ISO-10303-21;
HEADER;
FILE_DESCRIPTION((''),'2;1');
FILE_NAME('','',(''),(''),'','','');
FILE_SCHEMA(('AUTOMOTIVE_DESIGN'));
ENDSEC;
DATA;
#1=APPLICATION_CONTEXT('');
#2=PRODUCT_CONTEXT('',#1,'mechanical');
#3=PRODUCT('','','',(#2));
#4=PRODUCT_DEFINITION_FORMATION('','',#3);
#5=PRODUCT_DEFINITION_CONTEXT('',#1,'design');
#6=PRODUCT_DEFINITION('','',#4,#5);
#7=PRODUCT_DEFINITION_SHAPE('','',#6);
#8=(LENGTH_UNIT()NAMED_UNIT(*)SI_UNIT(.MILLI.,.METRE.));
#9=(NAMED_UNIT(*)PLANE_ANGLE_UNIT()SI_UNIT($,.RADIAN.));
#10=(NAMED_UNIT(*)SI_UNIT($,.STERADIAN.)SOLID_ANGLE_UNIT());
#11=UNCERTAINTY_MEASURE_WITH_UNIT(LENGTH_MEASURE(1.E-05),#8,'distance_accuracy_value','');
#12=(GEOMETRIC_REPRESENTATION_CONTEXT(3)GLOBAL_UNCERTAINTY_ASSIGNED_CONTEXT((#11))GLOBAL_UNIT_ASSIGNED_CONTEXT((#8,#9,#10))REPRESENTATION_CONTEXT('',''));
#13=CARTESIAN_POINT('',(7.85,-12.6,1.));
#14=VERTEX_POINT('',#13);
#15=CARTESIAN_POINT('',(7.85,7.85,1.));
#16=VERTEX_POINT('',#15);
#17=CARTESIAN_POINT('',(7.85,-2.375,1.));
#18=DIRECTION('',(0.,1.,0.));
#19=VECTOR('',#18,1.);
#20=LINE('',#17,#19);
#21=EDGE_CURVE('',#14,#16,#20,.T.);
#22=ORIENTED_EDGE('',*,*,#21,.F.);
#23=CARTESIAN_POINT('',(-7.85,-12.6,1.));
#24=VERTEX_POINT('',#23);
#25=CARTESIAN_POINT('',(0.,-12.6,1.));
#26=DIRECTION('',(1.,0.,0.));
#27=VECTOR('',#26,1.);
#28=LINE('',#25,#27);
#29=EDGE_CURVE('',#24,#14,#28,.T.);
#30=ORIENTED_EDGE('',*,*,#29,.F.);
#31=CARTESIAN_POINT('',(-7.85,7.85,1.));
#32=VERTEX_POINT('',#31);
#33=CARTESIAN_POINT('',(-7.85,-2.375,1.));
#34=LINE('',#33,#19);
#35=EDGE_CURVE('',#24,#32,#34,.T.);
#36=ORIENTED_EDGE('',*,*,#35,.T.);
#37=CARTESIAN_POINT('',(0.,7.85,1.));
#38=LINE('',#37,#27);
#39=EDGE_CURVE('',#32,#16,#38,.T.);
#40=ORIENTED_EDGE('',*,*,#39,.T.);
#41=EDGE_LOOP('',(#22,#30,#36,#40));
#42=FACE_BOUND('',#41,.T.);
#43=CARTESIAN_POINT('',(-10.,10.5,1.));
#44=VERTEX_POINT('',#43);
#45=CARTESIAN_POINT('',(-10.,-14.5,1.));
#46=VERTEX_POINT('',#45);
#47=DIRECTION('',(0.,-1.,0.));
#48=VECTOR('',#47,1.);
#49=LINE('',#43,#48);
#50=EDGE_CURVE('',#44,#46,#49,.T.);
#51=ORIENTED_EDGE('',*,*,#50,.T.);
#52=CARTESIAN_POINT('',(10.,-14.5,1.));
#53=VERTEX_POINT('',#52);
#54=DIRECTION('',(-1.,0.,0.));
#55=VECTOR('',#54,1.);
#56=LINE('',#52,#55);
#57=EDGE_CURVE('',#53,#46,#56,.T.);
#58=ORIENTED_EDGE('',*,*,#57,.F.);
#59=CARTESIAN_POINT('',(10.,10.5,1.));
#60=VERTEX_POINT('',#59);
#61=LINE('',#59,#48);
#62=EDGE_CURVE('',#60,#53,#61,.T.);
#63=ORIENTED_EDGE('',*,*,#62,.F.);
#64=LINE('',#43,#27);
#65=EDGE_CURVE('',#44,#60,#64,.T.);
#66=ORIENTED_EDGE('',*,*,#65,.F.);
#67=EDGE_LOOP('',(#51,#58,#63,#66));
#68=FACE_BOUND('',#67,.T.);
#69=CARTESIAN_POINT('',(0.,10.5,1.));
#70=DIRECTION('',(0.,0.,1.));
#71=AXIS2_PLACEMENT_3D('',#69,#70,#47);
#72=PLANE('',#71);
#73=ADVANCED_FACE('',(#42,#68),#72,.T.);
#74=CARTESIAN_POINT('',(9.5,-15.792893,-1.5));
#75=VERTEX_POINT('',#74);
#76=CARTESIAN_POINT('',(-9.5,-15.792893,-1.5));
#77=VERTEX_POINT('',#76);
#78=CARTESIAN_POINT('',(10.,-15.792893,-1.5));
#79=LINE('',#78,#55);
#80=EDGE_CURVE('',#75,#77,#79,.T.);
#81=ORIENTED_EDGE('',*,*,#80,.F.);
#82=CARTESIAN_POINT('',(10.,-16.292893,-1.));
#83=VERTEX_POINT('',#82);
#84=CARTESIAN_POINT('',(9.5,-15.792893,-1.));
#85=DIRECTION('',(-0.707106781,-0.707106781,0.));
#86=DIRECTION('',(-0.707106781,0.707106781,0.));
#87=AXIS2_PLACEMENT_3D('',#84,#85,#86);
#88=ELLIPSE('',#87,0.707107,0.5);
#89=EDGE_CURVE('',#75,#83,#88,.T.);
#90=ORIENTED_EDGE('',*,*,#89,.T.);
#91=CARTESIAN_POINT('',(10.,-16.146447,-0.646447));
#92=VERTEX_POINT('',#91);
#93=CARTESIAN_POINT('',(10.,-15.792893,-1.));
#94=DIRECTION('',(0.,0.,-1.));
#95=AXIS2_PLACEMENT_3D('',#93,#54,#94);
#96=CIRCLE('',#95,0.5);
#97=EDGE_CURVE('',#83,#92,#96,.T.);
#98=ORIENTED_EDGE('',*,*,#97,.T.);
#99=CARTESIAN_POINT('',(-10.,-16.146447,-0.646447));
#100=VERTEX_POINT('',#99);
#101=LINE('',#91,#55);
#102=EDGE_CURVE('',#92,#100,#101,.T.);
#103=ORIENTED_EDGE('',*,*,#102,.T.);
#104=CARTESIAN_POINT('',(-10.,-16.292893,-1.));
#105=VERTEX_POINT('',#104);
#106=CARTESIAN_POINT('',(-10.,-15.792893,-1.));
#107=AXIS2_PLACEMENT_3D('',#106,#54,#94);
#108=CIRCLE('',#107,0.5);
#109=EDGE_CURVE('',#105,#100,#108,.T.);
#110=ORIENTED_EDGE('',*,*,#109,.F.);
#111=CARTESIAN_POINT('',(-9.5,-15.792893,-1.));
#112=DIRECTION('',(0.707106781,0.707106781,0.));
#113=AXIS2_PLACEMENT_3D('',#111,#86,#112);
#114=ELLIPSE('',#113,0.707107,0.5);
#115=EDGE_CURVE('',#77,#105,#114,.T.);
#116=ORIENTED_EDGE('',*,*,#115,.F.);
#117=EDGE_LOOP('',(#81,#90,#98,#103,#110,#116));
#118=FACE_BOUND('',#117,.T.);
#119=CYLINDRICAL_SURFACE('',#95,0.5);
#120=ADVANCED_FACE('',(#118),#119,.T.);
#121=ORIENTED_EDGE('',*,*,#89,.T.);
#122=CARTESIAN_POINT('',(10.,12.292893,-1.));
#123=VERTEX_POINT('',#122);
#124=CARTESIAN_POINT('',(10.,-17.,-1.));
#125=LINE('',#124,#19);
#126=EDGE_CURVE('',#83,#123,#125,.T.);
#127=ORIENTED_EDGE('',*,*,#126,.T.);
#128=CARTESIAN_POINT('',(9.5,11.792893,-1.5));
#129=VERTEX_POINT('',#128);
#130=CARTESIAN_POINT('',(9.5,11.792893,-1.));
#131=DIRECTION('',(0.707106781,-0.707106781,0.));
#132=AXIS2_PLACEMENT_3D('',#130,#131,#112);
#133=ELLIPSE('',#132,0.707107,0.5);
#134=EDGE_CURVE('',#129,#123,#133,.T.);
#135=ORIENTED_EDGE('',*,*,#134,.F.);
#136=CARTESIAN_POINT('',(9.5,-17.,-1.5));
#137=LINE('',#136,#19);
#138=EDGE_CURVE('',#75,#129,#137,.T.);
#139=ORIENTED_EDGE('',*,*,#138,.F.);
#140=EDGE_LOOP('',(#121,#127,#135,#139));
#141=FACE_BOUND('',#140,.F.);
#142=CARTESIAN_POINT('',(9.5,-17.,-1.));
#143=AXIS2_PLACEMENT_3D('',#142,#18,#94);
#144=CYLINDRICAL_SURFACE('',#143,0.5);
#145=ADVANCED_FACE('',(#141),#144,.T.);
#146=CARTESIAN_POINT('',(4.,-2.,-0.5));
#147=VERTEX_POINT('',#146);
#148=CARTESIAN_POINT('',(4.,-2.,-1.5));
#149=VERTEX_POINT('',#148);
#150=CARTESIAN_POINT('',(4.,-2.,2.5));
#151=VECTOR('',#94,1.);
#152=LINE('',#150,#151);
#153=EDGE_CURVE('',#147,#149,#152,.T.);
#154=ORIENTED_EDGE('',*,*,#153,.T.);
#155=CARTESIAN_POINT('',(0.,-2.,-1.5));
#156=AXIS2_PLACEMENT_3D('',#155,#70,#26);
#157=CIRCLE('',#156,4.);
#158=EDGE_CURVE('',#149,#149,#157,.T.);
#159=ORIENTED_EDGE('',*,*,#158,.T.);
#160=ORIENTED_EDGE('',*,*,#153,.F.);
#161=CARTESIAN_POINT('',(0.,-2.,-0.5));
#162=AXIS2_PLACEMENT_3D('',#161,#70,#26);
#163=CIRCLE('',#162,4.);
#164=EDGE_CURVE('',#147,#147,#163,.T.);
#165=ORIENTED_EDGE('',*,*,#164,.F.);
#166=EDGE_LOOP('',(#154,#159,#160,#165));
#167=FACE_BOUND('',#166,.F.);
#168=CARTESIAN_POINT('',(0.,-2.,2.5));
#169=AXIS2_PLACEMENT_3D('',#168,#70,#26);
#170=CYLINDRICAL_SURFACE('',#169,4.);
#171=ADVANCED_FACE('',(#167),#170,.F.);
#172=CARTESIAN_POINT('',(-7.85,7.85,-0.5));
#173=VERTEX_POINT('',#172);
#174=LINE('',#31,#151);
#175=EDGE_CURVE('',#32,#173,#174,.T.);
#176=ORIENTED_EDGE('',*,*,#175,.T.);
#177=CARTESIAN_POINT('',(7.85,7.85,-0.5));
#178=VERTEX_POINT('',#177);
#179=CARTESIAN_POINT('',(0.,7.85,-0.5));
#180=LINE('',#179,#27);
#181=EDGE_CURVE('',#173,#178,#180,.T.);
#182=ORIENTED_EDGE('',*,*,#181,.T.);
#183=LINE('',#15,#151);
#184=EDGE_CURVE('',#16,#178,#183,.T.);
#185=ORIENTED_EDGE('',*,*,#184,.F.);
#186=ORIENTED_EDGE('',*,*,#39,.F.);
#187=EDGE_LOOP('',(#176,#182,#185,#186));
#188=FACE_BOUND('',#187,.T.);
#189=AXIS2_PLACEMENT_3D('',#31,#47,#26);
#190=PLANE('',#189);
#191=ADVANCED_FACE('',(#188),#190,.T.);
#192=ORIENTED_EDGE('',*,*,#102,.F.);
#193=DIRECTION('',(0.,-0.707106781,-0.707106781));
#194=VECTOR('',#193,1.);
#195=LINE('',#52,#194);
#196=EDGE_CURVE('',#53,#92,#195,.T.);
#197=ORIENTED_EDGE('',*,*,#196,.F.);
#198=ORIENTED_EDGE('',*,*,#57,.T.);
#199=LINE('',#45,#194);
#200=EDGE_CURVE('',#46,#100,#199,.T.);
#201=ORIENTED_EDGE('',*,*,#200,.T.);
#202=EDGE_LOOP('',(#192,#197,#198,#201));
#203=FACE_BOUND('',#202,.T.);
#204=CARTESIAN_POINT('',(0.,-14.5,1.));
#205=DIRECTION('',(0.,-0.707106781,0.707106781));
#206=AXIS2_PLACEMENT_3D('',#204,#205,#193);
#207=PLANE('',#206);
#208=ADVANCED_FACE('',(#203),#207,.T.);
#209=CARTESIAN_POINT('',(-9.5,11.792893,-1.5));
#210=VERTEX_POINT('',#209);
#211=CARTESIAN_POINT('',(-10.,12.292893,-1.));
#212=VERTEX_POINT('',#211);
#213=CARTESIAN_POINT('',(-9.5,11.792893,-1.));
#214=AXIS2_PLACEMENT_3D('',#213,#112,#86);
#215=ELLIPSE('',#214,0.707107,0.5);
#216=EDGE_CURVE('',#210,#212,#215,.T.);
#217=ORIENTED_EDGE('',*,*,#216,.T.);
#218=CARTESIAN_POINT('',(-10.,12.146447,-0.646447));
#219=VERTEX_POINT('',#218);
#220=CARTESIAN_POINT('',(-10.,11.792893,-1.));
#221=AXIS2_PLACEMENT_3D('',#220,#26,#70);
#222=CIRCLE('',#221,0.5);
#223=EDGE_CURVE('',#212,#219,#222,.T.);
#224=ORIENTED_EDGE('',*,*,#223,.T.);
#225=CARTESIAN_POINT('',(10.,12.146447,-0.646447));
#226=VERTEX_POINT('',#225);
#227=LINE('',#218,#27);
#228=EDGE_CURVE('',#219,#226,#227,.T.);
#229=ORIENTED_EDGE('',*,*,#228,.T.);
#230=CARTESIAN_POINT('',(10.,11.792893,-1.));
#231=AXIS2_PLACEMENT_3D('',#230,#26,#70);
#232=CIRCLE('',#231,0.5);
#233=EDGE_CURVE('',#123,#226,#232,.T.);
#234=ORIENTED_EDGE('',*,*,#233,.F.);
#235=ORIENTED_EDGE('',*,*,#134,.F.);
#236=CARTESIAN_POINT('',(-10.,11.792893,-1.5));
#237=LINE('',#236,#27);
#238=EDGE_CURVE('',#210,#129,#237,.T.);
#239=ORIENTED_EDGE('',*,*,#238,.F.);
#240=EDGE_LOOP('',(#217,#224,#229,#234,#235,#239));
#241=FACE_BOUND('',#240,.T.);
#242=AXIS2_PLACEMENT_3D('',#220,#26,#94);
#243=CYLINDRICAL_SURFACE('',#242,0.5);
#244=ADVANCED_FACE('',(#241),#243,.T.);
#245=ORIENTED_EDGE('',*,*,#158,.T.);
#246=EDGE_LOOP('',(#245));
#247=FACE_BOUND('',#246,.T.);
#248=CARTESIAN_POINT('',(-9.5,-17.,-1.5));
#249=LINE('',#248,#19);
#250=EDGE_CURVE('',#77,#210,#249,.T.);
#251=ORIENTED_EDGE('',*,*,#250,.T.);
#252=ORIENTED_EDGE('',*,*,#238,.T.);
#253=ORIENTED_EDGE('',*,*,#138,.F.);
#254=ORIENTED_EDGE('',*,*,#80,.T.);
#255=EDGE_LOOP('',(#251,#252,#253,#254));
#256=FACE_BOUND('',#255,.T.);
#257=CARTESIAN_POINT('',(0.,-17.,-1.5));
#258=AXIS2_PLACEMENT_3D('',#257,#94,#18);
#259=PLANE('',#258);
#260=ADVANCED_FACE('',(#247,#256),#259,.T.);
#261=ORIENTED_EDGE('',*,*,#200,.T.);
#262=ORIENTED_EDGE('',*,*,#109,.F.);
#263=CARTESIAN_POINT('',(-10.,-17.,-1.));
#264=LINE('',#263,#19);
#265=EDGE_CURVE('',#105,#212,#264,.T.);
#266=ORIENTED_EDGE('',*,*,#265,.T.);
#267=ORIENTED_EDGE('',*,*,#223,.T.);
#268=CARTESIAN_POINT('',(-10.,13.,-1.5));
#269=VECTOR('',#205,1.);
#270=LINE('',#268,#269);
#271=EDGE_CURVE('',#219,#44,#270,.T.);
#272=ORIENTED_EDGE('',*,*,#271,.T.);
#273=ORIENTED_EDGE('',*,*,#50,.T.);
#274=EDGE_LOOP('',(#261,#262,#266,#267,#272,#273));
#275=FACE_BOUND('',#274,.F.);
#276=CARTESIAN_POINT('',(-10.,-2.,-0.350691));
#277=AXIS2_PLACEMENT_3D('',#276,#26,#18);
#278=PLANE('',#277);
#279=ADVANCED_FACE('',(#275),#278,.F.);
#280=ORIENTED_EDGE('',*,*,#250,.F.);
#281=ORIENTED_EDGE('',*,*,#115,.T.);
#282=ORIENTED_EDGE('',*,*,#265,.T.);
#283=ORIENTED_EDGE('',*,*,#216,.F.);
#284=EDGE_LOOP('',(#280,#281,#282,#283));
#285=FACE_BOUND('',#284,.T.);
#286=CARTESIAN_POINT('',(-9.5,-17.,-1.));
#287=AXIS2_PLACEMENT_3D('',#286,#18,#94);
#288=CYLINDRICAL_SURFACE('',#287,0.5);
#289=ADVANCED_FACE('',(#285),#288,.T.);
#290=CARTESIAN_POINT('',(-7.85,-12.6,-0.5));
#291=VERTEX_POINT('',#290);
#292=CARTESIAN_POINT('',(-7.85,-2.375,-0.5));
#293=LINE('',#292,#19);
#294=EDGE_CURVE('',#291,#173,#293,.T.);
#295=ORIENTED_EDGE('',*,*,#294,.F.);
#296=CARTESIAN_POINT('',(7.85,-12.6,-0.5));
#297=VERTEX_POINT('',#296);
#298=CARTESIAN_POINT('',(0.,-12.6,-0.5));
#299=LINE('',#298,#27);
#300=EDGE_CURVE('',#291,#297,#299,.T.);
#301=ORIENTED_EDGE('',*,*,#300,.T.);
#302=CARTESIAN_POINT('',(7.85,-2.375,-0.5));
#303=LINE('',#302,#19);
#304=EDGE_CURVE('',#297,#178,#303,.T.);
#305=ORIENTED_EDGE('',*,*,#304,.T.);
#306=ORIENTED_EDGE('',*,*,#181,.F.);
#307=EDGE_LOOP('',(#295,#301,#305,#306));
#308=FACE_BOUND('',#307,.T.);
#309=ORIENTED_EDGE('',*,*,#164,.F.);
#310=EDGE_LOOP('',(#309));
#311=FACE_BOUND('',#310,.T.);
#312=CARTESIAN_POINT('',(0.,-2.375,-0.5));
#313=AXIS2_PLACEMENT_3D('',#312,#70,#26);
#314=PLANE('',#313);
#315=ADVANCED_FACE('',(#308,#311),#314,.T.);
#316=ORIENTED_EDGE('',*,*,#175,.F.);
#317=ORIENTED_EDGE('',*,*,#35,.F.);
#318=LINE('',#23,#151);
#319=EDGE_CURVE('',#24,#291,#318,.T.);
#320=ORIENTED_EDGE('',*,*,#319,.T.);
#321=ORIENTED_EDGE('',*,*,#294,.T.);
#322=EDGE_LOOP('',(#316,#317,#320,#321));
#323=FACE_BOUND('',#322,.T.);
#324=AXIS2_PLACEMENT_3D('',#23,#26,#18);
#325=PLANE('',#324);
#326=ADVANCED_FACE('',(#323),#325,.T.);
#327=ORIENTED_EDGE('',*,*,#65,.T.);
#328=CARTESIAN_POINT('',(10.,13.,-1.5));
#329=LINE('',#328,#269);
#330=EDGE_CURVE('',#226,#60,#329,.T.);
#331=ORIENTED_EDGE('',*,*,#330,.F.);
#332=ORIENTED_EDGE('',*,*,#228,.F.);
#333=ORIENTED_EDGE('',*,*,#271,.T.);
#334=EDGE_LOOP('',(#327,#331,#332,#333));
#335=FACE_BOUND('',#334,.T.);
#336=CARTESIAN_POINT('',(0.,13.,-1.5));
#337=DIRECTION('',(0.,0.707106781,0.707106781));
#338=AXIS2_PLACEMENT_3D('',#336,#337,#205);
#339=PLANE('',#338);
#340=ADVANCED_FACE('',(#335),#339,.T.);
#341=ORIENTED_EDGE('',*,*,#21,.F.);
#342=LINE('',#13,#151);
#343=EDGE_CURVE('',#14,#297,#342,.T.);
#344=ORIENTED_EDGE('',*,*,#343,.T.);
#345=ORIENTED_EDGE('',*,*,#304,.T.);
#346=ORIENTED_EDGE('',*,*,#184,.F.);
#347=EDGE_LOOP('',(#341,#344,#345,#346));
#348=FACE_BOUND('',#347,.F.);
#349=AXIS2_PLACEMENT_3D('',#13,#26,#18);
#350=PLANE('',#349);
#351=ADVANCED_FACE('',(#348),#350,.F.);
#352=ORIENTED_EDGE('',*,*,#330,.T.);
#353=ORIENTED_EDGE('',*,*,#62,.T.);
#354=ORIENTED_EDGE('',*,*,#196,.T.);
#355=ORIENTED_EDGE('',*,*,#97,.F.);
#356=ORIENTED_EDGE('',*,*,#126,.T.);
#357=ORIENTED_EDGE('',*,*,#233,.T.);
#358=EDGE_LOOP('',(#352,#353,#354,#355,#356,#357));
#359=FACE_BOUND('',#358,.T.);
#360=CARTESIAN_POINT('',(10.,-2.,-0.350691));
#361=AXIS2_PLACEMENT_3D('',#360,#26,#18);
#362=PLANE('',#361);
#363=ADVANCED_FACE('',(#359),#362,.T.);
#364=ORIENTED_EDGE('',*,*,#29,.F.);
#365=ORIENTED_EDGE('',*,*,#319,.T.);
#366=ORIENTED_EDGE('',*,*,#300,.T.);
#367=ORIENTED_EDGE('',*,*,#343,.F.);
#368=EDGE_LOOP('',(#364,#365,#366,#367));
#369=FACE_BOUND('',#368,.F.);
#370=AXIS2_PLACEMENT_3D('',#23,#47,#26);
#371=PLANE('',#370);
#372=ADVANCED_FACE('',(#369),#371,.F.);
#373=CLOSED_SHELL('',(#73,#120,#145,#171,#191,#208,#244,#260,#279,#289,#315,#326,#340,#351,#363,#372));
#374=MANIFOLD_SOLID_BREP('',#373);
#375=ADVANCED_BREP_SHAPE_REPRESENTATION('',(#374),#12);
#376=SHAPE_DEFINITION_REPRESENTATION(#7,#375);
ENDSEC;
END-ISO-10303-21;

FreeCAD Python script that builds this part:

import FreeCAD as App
import Part
import Sketcher


def edges_at(feature, points):
    """Names of the edges that pass closest to the given points."""
    edges = feature.Shape.Edges
    near = lambda p: min(range(len(edges)), key=lambda i: edges[i].distToShape(Part.Vertex(*p))[0])
    return sorted({f"Edge{near(p) + 1}" for p in points})

doc = App.newDocument("Part")
body = doc.addObject("PartDesign::Body", "Body")

sketch1 = body.newObject("Sketcher::SketchObject", "Sketch")
sketch1.AttachmentSupport = (doc.getObject("YZ_Plane"), [""])
sketch1.MapMode = "FlatFace"
sketch1.addGeometry([
    Part.LineSegment(App.Vector(-15, -4, 0), App.Vector(15, -4, 0)),
    Part.LineSegment(App.Vector(15, -4, 0), App.Vector(12.5, -1.5, 0)),
    Part.LineSegment(App.Vector(12.5, -1.5, 0), App.Vector(-12.5, -1.5, 0)),
    Part.LineSegment(App.Vector(-12.5, -1.5, 0), App.Vector(-15, -4, 0)),
], False)
sketch1.addConstraint([
    Sketcher.Constraint("Coincident", 0, 2, 1, 1),
    Sketcher.Constraint("Coincident", 1, 2, 2, 1),
    Sketcher.Constraint("Coincident", 2, 2, 3, 1),
    Sketcher.Constraint("Coincident", 3, 2, 0, 1),
    Sketcher.Constraint("Horizontal", 0),
    Sketcher.Constraint("Horizontal", 2),
    Sketcher.Constraint("Perpendicular", 1, 3),
    Sketcher.Constraint("Equal", 1, 3),
    Sketcher.Constraint("DistanceX", 0, 1, 0, 2, 30.0),
    Sketcher.Constraint("DistanceX", 2, 2, 2, 1, 25.0),
    Sketcher.Constraint("DistanceX", -1, 1, 0, 2, 15.0),
    Sketcher.Constraint("DistanceY", 0, 2, -1, 1, 4.0),
])
pad1 = body.newObject("PartDesign::Pad", "Pad")
pad1.Profile = sketch1
pad1.Length = 20
pad1.Midplane = True

sketch2 = body.newObject("Sketcher::SketchObject", "Sketch001")
sketch2.AttachmentSupport = (doc.getObject("XY_Plane"), [""])
sketch2.MapMode = "FlatFace"
sketch2.AttachmentOffset = App.Placement(App.Vector(0, 0, -1.5), App.Rotation())
sketch2.addGeometry([
    Part.LineSegment(App.Vector(-8, 10, 0), App.Vector(-8, -11, 0)),
    Part.LineSegment(App.Vector(-8, -11, 0), App.Vector(8, -11, 0)),
    Part.LineSegment(App.Vector(8, -11, 0), App.Vector(8, 10, 0)),
    Part.LineSegment(App.Vector(8, 10, 0), App.Vector(-8, 10, 0)),
], False)
sketch2.addConstraint([
    Sketcher.Constraint("Coincident", 0, 2, 1, 1),
    Sketcher.Constraint("Coincident", 1, 2, 2, 1),
    Sketcher.Constraint("Coincident", 2, 2, 3, 1),
    Sketcher.Constraint("Coincident", 3, 2, 0, 1),
    Sketcher.Constraint("Vertical", 0),
    Sketcher.Constraint("Horizontal", 1),
    Sketcher.Constraint("Vertical", 2),
    Sketcher.Constraint("Horizontal", 3),
    Sketcher.Constraint("DistanceX", 1, 1, 1, 2, 15.7),
    Sketcher.Constraint("DistanceY", 0, 2, 0, 1, 20.45),
    Sketcher.Constraint("DistanceY", 0, 2, -1, 1, 10.6),
    Sketcher.Constraint("DistanceX", 0, 2, -1, 1, 7.85),
])
pocket1 = body.newObject("PartDesign::Pocket", "Pocket")
pocket1.Profile = sketch2
pocket1.Length = 1.5
doc.recompute()

fillet = body.newObject("PartDesign::Fillet", "Fillet")
fillet.Base = (pocket1, edges_at(pocket1, [
    (0, -15, -4),
    (0, 15, -4),
    (-10, 0, -4),
    (10, 0, -4),
]))
fillet.Radius = 0.5

sketch3 = body.newObject("Sketcher::SketchObject", "Sketch002")
sketch3.AttachmentSupport = (doc.getObject("XY_Plane"), [""])
sketch3.MapMode = "FlatFace"
sketch3.addGeometry(Part.Circle(App.Vector(0, 0, 0), App.Vector(0, 0, 1), 4), False)
sketch3.addConstraint([
    Sketcher.Constraint("Coincident", 0, 3, -1, 1),
    Sketcher.Constraint("Diameter", 0, 8.0),
])
pocket2 = body.newObject("PartDesign::Pocket", "Pocket001")
pocket2.Profile = sketch3
pocket2.Type = "ThroughAll"
body2 = doc.addObject("PartDesign::Body", "Body001")
doc.recompute()

body.Placement = App.Placement(App.Vector(0, -2, 2.5), App.Rotation(App.Vector(0, 0, 1), 0))
boolean = body2.newObject("PartDesign::Boolean", "Boolean")
boolean.Type = "Fuse"
boolean.addObjects([body])

doc.recompute()
